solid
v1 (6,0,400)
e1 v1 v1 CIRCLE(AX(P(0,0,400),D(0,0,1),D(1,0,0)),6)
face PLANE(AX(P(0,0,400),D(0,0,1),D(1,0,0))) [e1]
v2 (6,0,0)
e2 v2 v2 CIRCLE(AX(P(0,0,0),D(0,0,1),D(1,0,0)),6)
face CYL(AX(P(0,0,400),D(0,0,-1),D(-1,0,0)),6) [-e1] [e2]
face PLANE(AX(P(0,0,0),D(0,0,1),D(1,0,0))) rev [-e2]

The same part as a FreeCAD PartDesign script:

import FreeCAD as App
import Part
import Sketcher

V = App.Vector
Q = App.Units.Quantity

doc = App.newDocument("Part")
body = doc.addObject("PartDesign::Body", "Body")

# Sketch on XY plane
sketch1 = body.newObject("Sketcher::SketchObject", "Sketch")
sketch1.AttachmentSupport = (doc.getObject("XY_Plane"), [""])
sketch1.MapMode = "FlatFace"
sketch1.addGeometry(Part.Circle(V(0, 0, 0), V(0, 0, 1), 6), False)
sketch1.addConstraint([
    Sketcher.Constraint("Coincident", 0, 3, -1, 1),
    Sketcher.Constraint("Diameter", 0, Q("12 mm")),
])
pad1 = body.newObject("PartDesign::Pad", "Pad")
pad1.Profile = sketch1
pad1.Length = 400

doc.recompute()
